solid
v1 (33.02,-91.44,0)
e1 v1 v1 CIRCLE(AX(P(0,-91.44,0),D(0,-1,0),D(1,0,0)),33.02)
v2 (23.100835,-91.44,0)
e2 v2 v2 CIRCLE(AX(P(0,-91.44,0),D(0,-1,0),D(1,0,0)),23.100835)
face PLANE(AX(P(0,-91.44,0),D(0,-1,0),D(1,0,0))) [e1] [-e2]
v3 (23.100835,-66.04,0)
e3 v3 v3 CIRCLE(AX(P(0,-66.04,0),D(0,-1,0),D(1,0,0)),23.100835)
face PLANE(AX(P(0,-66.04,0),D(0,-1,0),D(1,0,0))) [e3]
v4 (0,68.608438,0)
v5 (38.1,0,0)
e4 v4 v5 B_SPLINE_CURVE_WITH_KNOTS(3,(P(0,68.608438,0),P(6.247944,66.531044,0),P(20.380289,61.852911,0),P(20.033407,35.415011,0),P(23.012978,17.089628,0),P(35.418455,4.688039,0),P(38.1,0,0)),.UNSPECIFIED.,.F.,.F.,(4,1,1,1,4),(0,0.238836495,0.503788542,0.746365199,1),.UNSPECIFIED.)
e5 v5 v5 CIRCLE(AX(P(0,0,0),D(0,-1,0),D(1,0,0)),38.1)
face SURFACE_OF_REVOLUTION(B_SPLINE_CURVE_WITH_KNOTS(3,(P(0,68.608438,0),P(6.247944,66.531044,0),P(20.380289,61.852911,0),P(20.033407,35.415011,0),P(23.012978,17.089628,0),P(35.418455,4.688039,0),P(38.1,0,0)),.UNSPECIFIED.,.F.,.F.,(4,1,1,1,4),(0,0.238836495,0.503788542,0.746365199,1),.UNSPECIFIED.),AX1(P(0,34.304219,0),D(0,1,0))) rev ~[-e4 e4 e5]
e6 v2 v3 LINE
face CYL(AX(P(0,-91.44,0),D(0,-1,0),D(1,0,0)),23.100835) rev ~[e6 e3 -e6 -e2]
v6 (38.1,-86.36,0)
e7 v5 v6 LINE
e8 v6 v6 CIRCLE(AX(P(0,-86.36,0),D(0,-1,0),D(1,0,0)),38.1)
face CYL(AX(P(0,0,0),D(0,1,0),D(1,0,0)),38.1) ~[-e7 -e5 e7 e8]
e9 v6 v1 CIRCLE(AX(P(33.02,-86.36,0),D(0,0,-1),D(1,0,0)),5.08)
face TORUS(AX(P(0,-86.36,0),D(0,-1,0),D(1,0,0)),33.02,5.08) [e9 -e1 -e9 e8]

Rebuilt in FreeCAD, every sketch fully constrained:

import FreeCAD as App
import Part
import Sketcher
Q = App.Units.Quantity


def edges_at(feature, points):
    """Names of the edges that pass closest to the given points."""
    edges = feature.Shape.Edges
    near = lambda p: min(range(len(edges)), key=lambda i: edges[i].distToShape(Part.Vertex(*p))[0])
    return sorted({f"Edge{near(p) + 1}" for p in points})

doc = App.newDocument("Part")
params = doc.addObject("Spreadsheet::Sheet", "Params")
for row, (alias, value) in enumerate([
    ("sketch1_diameter", "3 in"),
    ("pad1_length", "3.6 in"),
    ("pocket1_length", "1 in"),
    ("fillet_radius", "0.2 in"),
    ("revolution_angle", "360 deg"),
], start=1):
    params.set(f"A{row}", alias)
    params.set(f"B{row}", "=" + value)
    params.setAlias(f"B{row}", alias)

body = doc.addObject("PartDesign::Body", "Body")

sketch1 = body.newObject("Sketcher::SketchObject", "Sketch")
sketch1.AttachmentSupport = (doc.getObject("XZ_Plane"), [""])
sketch1.MapMode = "FlatFace"
sketch1.addGeometry(Part.Circle(App.Vector(0, 0, 0), App.Vector(0, 0, 1), 38), False)
sketch1.addConstraint(Sketcher.Constraint("Coincident", 0, 3, -1, 1))
sketch1.addConstraint(Sketcher.Constraint("Diameter", 0, Q("3 in")))
sketch1.setExpression("Constraints[1]", "Params.sketch1_diameter")
pad1 = body.newObject("PartDesign::Pad", "Pad")
pad1.Profile = sketch1
pad1.setExpression("Length", "Params.pad1_length")

sketch2 = body.newObject("Sketcher::SketchObject", "Sketch001")
sketch2.AttachmentSupport = (doc.getObject("XZ_Plane"), [""])
sketch2.MapMode = "FlatFace"
sketch2.AttachmentOffset = App.Placement(App.Vector(0, 0, 3.6 * 25.4), App.Rotation())
sketch2.addGeometry(Part.Circle(App.Vector(0, 0, 0), App.Vector(0, 0, 1), 23), False)
sketch2.addConstraint(Sketcher.Constraint("Coincident", 0, 3, -1, 1))
sketch2.addConstraint(Sketcher.Constraint("Diameter", 0, Q("46.20167 mm")))
pocket1 = body.newObject("PartDesign::Pocket", "Pocket")
pocket1.Profile = sketch2
pocket1.setExpression("Length", "Params.pocket1_length")
doc.recompute()

fillet = body.newObject("PartDesign::Fillet", "Fillet")
fillet.Base = (pocket1, edges_at(pocket1, [(-38.1, -91.44, 0)]))
fillet.setExpression("Radius", "Params.fillet_radius")

sketch3 = body.newObject("Sketcher::SketchObject", "Sketch002")
sketch3.AttachmentSupport = (doc.getObject("XY_Plane"), [""])
sketch3.MapMode = "FlatFace"
sketch3.addGeometry(Part.LineSegment(App.Vector(0, 68.608438, 0), App.Vector(0, 0, 0)), False)
sketch3.addGeometry(Part.LineSegment(App.Vector(0, 0, 0), App.Vector(38.1, 0, 0)), False)
sketch3.addGeometry(Part.BSplineCurve([App.Vector(0, 68.608438, 0), App.Vector(6.247944, 66.531044, 0), App.Vector(20.380289, 61.852911, 0), App.Vector(20.033407, 35.415011, 0), App.Vector(23.012978, 17.089628, 0), App.Vector(35.418455, 4.688039, 0), App.Vector(38.1, 0, 0)], [4, 1, 1, 1, 4], [0, 0.238836495, 0.503788542, 0.746365199, 1], False, 3, [1, 1, 1, 1, 1, 1, 1], False), False)
sketch3.addConstraint(Sketcher.Constraint("Block", 2))
sketch3.addConstraint(Sketcher.Constraint("Coincident", 0, 2, 1, 1))
sketch3.addConstraint(Sketcher.Constraint("Coincident", 1, 2, 2, 2))
sketch3.addConstraint(Sketcher.Constraint("Coincident", 2, 1, 0, 1))
sketch3.addConstraint(Sketcher.Constraint("Vertical", 0))
sketch3.addConstraint(Sketcher.Constraint("Horizontal", 1))
revolution = body.newObject("PartDesign::Revolution", "Revolution")
revolution.Profile = sketch3
revolution.ReferenceAxis = (sketch3, ["V_Axis"])
revolution.setExpression("Angle", "Params.revolution_angle")

doc.recompute()
